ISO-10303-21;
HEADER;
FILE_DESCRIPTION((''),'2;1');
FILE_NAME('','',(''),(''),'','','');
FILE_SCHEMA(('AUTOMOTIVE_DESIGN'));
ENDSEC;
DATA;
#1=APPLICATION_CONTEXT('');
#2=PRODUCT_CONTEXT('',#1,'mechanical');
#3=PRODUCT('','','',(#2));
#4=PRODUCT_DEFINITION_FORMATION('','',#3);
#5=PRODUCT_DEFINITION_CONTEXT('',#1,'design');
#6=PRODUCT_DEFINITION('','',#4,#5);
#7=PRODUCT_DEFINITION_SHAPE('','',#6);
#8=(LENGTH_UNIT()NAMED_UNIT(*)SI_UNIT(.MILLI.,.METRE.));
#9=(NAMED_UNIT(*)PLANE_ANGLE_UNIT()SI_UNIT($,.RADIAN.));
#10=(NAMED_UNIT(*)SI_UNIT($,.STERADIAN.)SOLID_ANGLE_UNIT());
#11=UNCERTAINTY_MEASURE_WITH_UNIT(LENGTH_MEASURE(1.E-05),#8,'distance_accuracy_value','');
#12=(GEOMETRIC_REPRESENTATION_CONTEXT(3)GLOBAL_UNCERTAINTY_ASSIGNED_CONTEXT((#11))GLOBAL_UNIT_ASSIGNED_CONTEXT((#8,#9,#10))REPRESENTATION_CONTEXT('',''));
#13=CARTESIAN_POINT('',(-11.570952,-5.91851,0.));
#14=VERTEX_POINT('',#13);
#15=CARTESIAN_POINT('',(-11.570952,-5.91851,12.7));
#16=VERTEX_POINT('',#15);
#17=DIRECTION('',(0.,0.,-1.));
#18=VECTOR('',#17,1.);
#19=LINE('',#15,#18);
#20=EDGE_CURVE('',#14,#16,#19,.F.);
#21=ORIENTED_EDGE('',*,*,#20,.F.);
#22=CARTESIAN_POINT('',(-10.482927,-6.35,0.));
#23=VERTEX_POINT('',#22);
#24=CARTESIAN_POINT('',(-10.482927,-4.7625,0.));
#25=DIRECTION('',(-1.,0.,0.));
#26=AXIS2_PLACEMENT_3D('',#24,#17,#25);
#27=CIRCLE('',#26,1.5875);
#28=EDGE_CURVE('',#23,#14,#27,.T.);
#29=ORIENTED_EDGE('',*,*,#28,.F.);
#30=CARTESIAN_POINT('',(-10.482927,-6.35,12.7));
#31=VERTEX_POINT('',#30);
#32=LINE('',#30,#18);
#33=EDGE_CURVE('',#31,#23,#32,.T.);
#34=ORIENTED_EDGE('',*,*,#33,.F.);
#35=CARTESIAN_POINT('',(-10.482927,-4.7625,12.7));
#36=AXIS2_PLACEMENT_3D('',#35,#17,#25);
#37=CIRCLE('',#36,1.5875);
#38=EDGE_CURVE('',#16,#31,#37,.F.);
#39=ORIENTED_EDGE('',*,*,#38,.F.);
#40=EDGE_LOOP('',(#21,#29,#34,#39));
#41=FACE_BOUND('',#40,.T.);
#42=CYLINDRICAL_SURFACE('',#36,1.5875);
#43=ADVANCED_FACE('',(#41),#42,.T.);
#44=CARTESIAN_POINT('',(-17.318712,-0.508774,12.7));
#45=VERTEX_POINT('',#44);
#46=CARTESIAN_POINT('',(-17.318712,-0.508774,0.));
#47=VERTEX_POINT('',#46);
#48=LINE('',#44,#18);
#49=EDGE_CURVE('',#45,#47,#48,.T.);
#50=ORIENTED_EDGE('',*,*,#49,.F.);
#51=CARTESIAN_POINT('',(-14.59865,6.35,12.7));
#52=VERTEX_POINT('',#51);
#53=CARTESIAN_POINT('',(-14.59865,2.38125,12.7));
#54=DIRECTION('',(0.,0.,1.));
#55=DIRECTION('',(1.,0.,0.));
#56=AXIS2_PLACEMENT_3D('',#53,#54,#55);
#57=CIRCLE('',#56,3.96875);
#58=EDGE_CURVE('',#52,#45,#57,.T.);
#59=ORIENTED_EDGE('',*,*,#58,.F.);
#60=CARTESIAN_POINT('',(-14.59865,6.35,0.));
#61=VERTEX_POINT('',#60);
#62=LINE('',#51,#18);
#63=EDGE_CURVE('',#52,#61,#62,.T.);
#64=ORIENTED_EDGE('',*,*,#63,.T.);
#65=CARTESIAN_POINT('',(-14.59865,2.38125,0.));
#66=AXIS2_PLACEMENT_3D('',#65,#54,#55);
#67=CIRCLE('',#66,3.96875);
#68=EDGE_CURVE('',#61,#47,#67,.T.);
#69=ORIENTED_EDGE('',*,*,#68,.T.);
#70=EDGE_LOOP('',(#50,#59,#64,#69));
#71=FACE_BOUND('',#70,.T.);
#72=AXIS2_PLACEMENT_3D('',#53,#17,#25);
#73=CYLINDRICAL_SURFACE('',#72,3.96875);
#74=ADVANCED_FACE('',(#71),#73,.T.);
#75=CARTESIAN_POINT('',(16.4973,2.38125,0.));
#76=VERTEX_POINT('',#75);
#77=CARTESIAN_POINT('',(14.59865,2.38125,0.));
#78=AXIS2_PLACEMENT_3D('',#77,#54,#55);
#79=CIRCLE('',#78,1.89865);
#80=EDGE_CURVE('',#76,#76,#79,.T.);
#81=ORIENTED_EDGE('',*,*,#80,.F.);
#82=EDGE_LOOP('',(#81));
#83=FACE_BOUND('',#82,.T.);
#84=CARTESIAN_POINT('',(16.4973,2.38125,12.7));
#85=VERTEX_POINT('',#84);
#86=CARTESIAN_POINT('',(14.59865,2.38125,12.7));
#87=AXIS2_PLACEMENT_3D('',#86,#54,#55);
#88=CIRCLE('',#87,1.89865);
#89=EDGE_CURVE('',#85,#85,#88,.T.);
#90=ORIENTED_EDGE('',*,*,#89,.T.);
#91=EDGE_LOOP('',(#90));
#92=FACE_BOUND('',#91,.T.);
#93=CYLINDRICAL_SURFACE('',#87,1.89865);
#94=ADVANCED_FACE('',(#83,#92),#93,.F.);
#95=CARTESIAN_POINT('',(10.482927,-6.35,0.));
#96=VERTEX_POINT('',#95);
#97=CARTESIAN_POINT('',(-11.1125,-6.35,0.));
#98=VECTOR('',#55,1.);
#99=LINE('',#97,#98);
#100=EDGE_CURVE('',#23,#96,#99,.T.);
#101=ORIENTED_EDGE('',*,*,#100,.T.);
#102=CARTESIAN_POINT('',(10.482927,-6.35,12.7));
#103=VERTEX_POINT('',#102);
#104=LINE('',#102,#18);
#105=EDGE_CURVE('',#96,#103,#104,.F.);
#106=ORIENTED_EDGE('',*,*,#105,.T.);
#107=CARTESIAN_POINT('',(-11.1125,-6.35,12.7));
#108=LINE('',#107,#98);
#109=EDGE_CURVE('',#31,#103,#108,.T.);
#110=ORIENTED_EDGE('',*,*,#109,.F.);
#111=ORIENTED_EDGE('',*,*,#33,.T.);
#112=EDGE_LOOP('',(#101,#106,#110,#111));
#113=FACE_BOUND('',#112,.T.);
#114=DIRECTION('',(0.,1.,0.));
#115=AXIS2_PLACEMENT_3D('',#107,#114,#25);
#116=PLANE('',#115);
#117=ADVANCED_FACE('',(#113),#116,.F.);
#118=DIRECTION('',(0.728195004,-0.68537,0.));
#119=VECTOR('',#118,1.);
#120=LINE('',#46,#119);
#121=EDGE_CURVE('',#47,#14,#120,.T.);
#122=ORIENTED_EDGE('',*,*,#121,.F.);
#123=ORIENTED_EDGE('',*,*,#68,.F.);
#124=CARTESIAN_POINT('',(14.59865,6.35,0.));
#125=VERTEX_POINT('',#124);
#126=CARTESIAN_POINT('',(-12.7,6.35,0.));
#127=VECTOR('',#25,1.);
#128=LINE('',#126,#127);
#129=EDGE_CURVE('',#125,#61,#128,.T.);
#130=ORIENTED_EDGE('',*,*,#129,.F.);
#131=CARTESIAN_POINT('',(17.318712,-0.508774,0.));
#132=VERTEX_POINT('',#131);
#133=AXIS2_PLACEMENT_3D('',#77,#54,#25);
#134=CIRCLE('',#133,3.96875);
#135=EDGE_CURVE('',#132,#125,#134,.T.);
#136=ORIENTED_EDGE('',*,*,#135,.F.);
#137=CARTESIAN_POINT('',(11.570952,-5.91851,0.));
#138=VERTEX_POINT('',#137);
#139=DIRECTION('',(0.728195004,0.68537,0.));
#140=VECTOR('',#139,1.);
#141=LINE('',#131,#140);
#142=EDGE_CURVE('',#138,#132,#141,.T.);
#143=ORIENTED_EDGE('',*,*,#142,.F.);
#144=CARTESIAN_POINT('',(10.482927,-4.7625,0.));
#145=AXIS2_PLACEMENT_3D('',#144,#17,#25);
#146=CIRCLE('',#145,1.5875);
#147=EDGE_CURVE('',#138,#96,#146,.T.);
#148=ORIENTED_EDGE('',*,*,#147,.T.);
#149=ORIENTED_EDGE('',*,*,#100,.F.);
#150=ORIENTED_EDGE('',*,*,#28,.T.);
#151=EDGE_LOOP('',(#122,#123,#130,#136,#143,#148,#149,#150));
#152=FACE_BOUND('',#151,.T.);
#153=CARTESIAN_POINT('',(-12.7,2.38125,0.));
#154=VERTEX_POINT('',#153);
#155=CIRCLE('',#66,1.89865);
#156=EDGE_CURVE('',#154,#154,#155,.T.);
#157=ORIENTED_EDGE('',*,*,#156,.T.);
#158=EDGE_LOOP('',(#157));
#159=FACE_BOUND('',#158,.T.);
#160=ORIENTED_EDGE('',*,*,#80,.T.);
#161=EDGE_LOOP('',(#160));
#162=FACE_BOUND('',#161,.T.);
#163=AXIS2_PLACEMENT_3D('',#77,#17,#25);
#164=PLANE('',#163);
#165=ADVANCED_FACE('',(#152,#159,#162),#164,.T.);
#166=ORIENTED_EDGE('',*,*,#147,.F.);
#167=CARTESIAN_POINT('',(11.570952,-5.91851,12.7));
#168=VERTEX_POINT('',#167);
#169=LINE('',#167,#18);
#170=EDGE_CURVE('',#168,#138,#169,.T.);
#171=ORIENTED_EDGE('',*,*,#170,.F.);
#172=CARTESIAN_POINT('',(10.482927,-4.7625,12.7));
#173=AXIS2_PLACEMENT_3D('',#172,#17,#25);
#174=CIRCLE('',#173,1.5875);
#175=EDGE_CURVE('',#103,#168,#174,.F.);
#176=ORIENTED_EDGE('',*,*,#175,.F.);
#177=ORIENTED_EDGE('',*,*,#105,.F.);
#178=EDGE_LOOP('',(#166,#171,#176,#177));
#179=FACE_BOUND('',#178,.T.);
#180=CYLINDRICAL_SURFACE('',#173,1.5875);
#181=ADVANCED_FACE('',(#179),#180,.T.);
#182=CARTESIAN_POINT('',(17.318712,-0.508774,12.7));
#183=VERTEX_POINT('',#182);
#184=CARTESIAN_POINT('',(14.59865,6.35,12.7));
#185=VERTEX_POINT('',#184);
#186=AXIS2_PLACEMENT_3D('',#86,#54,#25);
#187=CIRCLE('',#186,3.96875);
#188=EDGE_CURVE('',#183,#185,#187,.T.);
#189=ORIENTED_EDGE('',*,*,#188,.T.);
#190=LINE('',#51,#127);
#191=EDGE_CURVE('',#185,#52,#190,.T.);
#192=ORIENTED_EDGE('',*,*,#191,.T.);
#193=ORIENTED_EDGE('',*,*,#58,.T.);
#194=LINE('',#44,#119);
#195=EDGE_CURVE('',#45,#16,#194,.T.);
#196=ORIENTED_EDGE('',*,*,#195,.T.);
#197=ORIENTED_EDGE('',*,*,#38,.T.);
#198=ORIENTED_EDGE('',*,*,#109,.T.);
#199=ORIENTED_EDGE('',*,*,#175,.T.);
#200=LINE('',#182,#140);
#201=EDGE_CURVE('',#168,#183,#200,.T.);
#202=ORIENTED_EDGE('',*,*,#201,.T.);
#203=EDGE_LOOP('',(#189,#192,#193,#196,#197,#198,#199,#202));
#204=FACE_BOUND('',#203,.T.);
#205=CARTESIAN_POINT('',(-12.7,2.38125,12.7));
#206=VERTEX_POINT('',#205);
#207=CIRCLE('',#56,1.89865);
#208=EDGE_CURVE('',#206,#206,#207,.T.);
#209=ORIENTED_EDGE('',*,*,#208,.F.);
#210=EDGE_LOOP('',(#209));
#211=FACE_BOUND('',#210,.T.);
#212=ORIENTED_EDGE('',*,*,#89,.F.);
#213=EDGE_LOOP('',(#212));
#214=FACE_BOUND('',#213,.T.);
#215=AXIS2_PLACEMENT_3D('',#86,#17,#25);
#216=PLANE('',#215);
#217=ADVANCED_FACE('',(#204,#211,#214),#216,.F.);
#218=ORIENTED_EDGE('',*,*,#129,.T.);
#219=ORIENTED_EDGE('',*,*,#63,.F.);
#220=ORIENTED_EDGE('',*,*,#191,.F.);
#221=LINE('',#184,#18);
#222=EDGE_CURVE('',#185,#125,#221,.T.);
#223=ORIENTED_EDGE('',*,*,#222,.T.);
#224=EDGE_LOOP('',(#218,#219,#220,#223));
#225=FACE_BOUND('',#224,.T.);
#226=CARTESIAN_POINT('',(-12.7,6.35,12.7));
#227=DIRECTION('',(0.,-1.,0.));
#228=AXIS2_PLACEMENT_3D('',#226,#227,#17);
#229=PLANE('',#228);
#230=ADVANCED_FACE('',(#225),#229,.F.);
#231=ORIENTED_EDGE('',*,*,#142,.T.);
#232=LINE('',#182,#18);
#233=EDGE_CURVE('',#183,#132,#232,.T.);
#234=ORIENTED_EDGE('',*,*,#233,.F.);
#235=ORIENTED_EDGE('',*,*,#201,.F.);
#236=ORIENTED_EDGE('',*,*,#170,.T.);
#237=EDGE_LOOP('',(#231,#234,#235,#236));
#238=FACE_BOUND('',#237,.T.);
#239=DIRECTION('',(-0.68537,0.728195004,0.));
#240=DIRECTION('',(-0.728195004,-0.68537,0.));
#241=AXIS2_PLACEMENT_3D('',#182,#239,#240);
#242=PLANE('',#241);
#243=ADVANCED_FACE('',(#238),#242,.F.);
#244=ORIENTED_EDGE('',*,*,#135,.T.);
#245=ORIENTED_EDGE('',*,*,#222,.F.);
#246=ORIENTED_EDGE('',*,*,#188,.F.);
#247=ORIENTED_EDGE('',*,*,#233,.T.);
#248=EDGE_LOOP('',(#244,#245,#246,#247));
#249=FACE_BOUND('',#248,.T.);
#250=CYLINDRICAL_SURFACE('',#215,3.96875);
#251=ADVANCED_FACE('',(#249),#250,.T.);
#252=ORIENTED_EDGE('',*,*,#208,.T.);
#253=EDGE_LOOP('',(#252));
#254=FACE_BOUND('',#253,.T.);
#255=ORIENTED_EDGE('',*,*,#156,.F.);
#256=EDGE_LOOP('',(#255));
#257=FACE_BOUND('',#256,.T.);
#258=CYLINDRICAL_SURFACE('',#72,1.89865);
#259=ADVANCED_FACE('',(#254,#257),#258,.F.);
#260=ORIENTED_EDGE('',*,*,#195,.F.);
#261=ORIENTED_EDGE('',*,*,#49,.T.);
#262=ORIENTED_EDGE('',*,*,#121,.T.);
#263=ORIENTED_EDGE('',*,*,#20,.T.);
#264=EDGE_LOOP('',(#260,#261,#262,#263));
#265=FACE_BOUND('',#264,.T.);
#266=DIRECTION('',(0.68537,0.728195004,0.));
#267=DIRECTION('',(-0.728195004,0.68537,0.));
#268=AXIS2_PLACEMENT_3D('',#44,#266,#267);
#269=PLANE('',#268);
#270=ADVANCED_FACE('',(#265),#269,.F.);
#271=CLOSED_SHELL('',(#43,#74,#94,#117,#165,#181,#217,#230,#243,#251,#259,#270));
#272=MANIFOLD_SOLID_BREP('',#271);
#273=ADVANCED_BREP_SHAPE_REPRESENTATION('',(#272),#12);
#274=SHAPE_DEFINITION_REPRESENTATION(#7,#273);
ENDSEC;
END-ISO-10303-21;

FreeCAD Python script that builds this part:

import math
import FreeCAD as App
import Part
import Sketcher

V = App.Vector
Q = App.Units.Quantity


def edges_at(feature, points):
    """Names of the edges that pass closest to the given points."""
    edges = feature.Shape.Edges
    near = lambda p: min(range(len(edges)), key=lambda i: edges[i].distToShape(Part.Vertex(*p))[0])
    return sorted({f"Edge{near(p) + 1}" for p in points})

doc = App.newDocument("Part")
body = doc.addObject("PartDesign::Body", "Body")

# Sketch on XY plane
sketch1 = body.newObject("Sketcher::SketchObject", "Sketch")
sketch1.AttachmentSupport = (doc.getObject("XY_Plane"), [""])
sketch1.MapMode = "FlatFace"
sketch1.addGeometry([
    Part.LineSegment(V(-17.3, -0.5, 0), V(-11.1, -6.3, 0)),  # 0
    Part.LineSegment(V(-11.1, -6.3, 0), V(11.1, -6.3, 0)),  # 1
    Part.LineSegment(V(11.1, -6.3, 0), V(17.3, -0.5, 0)),  # 2
    Part.ArcOfCircle(Part.Circle(V(14.6, 2.4, 0), V(0, 0, 1), 4), math.radians(-47), math.radians(90)),  # 3
    Part.LineSegment(V(14.6, 6.3, 0), V(-14.6, 6.3, 0)),  # 4
    Part.ArcOfCircle(Part.Circle(V(-14.6, 2.4, 0), V(0, 0, 1), 4), math.radians(90), math.radians(227)),  # 5
    Part.Circle(V(-14.6, 2.4, 0), V(0, 0, 1), 1.9),  # 6
], False)
sketch1.addConstraint([
    Sketcher.Constraint("Coincident", 0, 2, 1, 1),
    Sketcher.Constraint("Coincident", 1, 2, 2, 1),
    Sketcher.Constraint("Tangent", 2, 2, 3, 1),
    Sketcher.Constraint("Tangent", 3, 2, 4, 1),
    Sketcher.Constraint("Tangent", 4, 2, 5, 1),
    Sketcher.Constraint("Tangent", 5, 2, 0, 1),
    Sketcher.Constraint("Horizontal", 1),
    Sketcher.Constraint("Horizontal", 4),
    Sketcher.Constraint("Coincident", 6, 3, 5, 3),
    Sketcher.Constraint("Equal", 3, 5),
    Sketcher.Constraint("Symmetric", 2, 2, 5, 2, -2),
    Sketcher.Constraint("Radius", 3, Q("0.15625 in")),
    Sketcher.Constraint("Diameter", 6, Q("0.1495 in")),
    Sketcher.Constraint("DistanceY", 1, 2, 3, 2, Q("0.5 in")),
    Sketcher.Constraint("DistanceX", 1, 1, 1, 2, Q("0.875 in")),
    Sketcher.Constraint("DistanceY", 0, 2, -1, 1, Q("0.25 in")),
    Sketcher.Constraint("DistanceX", 4, 2, 4, 1, Q("1.1495 in")),
])
pad1 = body.newObject("PartDesign::Pad", "Pad")
pad1.Profile = sketch1
pad1.Length = Q("0.5 in")
doc.recompute()

fillet = body.newObject("PartDesign::Fillet", "Fillet")
fillet.Base = (pad1, edges_at(pad1, [(11.113, -6.35, 6.35), (-11.113, -6.35, 6.35)]))
fillet.Radius = Q("0.0625 in")

# Sketch on XY plane
sketch2 = body.newObject("Sketcher::SketchObject", "Sketch001")
sketch2.AttachmentSupport = (doc.getObject("XY_Plane"), [""])
sketch2.MapMode = "FlatFace"
sketch2.AttachmentOffset = App.Placement(V(0, 0, 0.5 * 25.4), App.Rotation())
sketch2.addGeometry([
    Part.Circle(V(-14.6, 2.4, 0), V(0, 0, 1), 1.9),
    Part.Circle(V(14.6, 2.4, 0), V(0, 0, 1), 1.9),
], False)
sketch2.addConstraint([
    Sketcher.Constraint("Equal", 0, 1),
    Sketcher.Constraint("Symmetric", 0, 3, 1, 3, -2),
    Sketcher.Constraint("Diameter", 0, Q("0.1495 in")),
    Sketcher.Constraint("DistanceY", -1, 1, 0, 3, Q("0.09375 in")),
    Sketcher.Constraint("DistanceX", 0, 3, 1, 3, Q("1.1495 in")),
])
doc.recompute()
hole = body.newObject("PartDesign::Hole", "Hole")
hole.Profile = sketch2
hole.ThreadType = "None"
hole.Diameter = Q("0.1495 in")
hole.DepthType = "ThroughAll"

doc.recompute()
